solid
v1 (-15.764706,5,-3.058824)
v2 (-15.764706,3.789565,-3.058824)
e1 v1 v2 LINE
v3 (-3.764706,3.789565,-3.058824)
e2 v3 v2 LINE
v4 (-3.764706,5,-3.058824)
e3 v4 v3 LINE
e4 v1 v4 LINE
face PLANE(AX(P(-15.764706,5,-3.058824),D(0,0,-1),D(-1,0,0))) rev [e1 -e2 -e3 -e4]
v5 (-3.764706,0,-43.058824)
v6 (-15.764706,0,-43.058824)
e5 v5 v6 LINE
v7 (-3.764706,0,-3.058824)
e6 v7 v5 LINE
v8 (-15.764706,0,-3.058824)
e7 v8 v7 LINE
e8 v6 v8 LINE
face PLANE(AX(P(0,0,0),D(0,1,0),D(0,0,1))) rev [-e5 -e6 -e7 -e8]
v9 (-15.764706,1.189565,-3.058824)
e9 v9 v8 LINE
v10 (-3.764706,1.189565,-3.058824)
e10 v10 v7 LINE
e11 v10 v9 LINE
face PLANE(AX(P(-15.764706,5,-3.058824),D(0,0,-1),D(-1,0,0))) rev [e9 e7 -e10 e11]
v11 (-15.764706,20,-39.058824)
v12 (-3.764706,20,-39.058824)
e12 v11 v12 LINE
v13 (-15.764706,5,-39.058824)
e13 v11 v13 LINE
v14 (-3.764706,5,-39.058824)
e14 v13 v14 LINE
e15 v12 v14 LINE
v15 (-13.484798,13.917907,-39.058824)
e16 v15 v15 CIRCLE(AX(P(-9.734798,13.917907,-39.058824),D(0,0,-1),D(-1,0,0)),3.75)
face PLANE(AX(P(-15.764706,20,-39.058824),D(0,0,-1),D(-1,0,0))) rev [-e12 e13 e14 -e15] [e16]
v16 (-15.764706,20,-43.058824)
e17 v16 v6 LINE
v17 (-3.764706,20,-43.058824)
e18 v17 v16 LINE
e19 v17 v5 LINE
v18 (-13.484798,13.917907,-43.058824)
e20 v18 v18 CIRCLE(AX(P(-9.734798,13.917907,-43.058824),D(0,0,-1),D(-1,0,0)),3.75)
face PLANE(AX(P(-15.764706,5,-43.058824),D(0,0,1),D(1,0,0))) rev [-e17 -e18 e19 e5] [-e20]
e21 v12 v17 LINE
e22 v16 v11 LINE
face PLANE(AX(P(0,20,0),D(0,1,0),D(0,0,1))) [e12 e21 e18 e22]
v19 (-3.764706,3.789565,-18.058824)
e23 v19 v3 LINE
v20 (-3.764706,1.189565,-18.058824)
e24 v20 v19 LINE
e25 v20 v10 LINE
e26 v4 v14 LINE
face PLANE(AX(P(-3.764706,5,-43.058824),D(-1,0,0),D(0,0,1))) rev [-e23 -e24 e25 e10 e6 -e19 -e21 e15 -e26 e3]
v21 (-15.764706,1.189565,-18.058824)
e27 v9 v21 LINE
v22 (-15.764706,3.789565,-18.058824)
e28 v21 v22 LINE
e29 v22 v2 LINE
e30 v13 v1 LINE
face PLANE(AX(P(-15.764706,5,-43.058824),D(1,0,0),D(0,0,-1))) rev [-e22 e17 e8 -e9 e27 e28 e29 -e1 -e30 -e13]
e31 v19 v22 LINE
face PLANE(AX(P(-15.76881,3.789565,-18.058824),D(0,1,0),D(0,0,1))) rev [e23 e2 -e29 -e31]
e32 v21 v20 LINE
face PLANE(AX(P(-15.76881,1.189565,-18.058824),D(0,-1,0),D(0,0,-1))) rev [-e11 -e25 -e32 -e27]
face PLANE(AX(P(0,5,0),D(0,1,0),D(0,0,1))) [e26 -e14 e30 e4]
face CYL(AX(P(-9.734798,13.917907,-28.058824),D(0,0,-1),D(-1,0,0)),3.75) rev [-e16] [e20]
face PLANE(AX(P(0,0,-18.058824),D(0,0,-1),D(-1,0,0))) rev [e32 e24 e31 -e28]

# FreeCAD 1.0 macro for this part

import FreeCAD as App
import Part
import Sketcher
from FreeCAD import Vector
Q = App.Units.Quantity


def add_polygon(sketch, points):
    """Adds a closed chain of lines whose ends are joined by coincident constraints."""
    first, n = sketch.GeometryCount, len(points)
    for a, b in zip(points, points[1:] + points[:1]):
        sketch.addGeometry(Part.LineSegment(App.Vector(*a, 0), App.Vector(*b, 0)), False)
    for i in range(n):
        sketch.addConstraint(Sketcher.Constraint("Coincident", first + i, 2, first + (i + 1) % n, 1))

doc = App.newDocument("Part")
body = doc.addObject("PartDesign::Body", "Body")

# Sketch on XZ plane
sketch1 = body.newObject("Sketcher::SketchObject", "Sketch")
sketch1.AttachmentSupport = (doc.getObject("XZ_Plane"), [""])
sketch1.MapMode = "FlatFace"
add_polygon(sketch1, [(-16, -43), (-16, -3), (-4, -3), (-4, -43)])  # lines 0-3
sketch1.addConstraint(Sketcher.Constraint("Vertical", 0))
sketch1.addConstraint(Sketcher.Constraint("Horizontal", 1))
sketch1.addConstraint(Sketcher.Constraint("Vertical", 2))
sketch1.addConstraint(Sketcher.Constraint("Horizontal", 3))
sketch1.addConstraint(Sketcher.Constraint("DistanceX", 1, 1, 1, 2, Q("12 mm")))
sketch1.addConstraint(Sketcher.Constraint("DistanceY", 0, 1, 0, 2, Q("40 mm")))
sketch1.addConstraint(Sketcher.Constraint("DistanceX", 0, 2, -1, 1, Q("15.764706 mm")))
sketch1.addConstraint(Sketcher.Constraint("DistanceY", 0, 2, -1, 1, Q("3.058824 mm")))
pad1 = body.newObject("PartDesign::Pad", "Pad")
pad1.Profile = sketch1
pad1.Length = 5
pad1.Reversed = True

# Sketch on XY plane
sketch2 = body.newObject("Sketcher::SketchObject", "Sketch001")
sketch2.AttachmentSupport = (doc.getObject("XY_Plane"), [""])
sketch2.MapMode = "FlatFace"
sketch2.AttachmentOffset = App.Placement(Vector(0, 0, -3.058824), App.Rotation())
add_polygon(sketch2, [(-15.8, 3.8), (-15.8, 1.2), (-3.8, 1.2), (-3.8, 3.8)])  # lines 0-3
sketch2.addConstraint(Sketcher.Constraint("Vertical", 0))
sketch2.addConstraint(Sketcher.Constraint("Horizontal", 1))
sketch2.addConstraint(Sketcher.Constraint("Vertical", 2))
sketch2.addConstraint(Sketcher.Constraint("Horizontal", 3))
sketch2.addConstraint(Sketcher.Constraint("DistanceY", 0, 2, 0, 1, Q("2.6 mm")))
sketch2.addConstraint(Sketcher.Constraint("DistanceX", 1, 1, 1, 2, Q("12.004104 mm")))
sketch2.addConstraint(Sketcher.Constraint("DistanceX", 0, 2, -1, 1, Q("15.76881 mm")))
sketch2.addConstraint(Sketcher.Constraint("DistanceY", -1, 1, 0, 2, Q("1.189565 mm")))
pocket1 = body.newObject("PartDesign::Pocket", "Pocket")
pocket1.Profile = sketch2
pocket1.Length = 15

# Sketch on XZ plane
sketch3 = body.newObject("Sketcher::SketchObject", "Sketch002")
sketch3.AttachmentSupport = (doc.getObject("XZ_Plane"), [""])
sketch3.MapMode = "FlatFace"
sketch3.AttachmentOffset = App.Placement(Vector(0, 0, -5), App.Rotation())
add_polygon(sketch3, [(-15.8, -43.1), (-15.8, -39.1), (-3.8, -39.1), (-3.8, -43.1)])  # lines 0-3
sketch3.addConstraint(Sketcher.Constraint("Vertical", 0))
sketch3.addConstraint(Sketcher.Constraint("Horizontal", 1))
sketch3.addConstraint(Sketcher.Constraint("Vertical", 2))
sketch3.addConstraint(Sketcher.Constraint("Horizontal", 3))
sketch3.addConstraint(Sketcher.Constraint("DistanceX", 1, 1, 1, 2, Q("12 mm")))
sketch3.addConstraint(Sketcher.Constraint("DistanceY", 0, 1, 0, 2, Q("4 mm")))
sketch3.addConstraint(Sketcher.Constraint("DistanceX", 0, 2, -1, 1, Q("15.764706 mm")))
sketch3.addConstraint(Sketcher.Constraint("DistanceY", 0, 2, -1, 1, Q("39.058824 mm")))
pad2 = body.newObject("PartDesign::Pad", "Pad001")
pad2.Profile = sketch3
pad2.Length = 15
pad2.Reversed = True

# Sketch on XY plane
sketch4 = body.newObject("Sketcher::SketchObject", "Sketch003")
sketch4.AttachmentSupport = (doc.getObject("XY_Plane"), [""])
sketch4.MapMode = "FlatFace"
sketch4.AttachmentOffset = App.Placement(Vector(0, 0, -43.058824), App.Rotation())
sketch4.addGeometry(Part.Circle(Vector(-9.7, 13.9, 0), Vector(0, 0, 1), 3.8), False)
sketch4.addConstraint(Sketcher.Constraint("Diameter", 0, Q("7.5 mm")))
sketch4.addConstraint(Sketcher.Constraint("DistanceX", 0, 3, -1, 1, Q("9.734798 mm")))
sketch4.addConstraint(Sketcher.Constraint("DistanceY", -1, 1, 0, 3, Q("13.917907 mm")))
pocket2 = body.newObject("PartDesign::Pocket", "Pocket001")
pocket2.Profile = sketch4
pocket2.Length = 15
pocket2.Reversed = True

doc.recompute()
